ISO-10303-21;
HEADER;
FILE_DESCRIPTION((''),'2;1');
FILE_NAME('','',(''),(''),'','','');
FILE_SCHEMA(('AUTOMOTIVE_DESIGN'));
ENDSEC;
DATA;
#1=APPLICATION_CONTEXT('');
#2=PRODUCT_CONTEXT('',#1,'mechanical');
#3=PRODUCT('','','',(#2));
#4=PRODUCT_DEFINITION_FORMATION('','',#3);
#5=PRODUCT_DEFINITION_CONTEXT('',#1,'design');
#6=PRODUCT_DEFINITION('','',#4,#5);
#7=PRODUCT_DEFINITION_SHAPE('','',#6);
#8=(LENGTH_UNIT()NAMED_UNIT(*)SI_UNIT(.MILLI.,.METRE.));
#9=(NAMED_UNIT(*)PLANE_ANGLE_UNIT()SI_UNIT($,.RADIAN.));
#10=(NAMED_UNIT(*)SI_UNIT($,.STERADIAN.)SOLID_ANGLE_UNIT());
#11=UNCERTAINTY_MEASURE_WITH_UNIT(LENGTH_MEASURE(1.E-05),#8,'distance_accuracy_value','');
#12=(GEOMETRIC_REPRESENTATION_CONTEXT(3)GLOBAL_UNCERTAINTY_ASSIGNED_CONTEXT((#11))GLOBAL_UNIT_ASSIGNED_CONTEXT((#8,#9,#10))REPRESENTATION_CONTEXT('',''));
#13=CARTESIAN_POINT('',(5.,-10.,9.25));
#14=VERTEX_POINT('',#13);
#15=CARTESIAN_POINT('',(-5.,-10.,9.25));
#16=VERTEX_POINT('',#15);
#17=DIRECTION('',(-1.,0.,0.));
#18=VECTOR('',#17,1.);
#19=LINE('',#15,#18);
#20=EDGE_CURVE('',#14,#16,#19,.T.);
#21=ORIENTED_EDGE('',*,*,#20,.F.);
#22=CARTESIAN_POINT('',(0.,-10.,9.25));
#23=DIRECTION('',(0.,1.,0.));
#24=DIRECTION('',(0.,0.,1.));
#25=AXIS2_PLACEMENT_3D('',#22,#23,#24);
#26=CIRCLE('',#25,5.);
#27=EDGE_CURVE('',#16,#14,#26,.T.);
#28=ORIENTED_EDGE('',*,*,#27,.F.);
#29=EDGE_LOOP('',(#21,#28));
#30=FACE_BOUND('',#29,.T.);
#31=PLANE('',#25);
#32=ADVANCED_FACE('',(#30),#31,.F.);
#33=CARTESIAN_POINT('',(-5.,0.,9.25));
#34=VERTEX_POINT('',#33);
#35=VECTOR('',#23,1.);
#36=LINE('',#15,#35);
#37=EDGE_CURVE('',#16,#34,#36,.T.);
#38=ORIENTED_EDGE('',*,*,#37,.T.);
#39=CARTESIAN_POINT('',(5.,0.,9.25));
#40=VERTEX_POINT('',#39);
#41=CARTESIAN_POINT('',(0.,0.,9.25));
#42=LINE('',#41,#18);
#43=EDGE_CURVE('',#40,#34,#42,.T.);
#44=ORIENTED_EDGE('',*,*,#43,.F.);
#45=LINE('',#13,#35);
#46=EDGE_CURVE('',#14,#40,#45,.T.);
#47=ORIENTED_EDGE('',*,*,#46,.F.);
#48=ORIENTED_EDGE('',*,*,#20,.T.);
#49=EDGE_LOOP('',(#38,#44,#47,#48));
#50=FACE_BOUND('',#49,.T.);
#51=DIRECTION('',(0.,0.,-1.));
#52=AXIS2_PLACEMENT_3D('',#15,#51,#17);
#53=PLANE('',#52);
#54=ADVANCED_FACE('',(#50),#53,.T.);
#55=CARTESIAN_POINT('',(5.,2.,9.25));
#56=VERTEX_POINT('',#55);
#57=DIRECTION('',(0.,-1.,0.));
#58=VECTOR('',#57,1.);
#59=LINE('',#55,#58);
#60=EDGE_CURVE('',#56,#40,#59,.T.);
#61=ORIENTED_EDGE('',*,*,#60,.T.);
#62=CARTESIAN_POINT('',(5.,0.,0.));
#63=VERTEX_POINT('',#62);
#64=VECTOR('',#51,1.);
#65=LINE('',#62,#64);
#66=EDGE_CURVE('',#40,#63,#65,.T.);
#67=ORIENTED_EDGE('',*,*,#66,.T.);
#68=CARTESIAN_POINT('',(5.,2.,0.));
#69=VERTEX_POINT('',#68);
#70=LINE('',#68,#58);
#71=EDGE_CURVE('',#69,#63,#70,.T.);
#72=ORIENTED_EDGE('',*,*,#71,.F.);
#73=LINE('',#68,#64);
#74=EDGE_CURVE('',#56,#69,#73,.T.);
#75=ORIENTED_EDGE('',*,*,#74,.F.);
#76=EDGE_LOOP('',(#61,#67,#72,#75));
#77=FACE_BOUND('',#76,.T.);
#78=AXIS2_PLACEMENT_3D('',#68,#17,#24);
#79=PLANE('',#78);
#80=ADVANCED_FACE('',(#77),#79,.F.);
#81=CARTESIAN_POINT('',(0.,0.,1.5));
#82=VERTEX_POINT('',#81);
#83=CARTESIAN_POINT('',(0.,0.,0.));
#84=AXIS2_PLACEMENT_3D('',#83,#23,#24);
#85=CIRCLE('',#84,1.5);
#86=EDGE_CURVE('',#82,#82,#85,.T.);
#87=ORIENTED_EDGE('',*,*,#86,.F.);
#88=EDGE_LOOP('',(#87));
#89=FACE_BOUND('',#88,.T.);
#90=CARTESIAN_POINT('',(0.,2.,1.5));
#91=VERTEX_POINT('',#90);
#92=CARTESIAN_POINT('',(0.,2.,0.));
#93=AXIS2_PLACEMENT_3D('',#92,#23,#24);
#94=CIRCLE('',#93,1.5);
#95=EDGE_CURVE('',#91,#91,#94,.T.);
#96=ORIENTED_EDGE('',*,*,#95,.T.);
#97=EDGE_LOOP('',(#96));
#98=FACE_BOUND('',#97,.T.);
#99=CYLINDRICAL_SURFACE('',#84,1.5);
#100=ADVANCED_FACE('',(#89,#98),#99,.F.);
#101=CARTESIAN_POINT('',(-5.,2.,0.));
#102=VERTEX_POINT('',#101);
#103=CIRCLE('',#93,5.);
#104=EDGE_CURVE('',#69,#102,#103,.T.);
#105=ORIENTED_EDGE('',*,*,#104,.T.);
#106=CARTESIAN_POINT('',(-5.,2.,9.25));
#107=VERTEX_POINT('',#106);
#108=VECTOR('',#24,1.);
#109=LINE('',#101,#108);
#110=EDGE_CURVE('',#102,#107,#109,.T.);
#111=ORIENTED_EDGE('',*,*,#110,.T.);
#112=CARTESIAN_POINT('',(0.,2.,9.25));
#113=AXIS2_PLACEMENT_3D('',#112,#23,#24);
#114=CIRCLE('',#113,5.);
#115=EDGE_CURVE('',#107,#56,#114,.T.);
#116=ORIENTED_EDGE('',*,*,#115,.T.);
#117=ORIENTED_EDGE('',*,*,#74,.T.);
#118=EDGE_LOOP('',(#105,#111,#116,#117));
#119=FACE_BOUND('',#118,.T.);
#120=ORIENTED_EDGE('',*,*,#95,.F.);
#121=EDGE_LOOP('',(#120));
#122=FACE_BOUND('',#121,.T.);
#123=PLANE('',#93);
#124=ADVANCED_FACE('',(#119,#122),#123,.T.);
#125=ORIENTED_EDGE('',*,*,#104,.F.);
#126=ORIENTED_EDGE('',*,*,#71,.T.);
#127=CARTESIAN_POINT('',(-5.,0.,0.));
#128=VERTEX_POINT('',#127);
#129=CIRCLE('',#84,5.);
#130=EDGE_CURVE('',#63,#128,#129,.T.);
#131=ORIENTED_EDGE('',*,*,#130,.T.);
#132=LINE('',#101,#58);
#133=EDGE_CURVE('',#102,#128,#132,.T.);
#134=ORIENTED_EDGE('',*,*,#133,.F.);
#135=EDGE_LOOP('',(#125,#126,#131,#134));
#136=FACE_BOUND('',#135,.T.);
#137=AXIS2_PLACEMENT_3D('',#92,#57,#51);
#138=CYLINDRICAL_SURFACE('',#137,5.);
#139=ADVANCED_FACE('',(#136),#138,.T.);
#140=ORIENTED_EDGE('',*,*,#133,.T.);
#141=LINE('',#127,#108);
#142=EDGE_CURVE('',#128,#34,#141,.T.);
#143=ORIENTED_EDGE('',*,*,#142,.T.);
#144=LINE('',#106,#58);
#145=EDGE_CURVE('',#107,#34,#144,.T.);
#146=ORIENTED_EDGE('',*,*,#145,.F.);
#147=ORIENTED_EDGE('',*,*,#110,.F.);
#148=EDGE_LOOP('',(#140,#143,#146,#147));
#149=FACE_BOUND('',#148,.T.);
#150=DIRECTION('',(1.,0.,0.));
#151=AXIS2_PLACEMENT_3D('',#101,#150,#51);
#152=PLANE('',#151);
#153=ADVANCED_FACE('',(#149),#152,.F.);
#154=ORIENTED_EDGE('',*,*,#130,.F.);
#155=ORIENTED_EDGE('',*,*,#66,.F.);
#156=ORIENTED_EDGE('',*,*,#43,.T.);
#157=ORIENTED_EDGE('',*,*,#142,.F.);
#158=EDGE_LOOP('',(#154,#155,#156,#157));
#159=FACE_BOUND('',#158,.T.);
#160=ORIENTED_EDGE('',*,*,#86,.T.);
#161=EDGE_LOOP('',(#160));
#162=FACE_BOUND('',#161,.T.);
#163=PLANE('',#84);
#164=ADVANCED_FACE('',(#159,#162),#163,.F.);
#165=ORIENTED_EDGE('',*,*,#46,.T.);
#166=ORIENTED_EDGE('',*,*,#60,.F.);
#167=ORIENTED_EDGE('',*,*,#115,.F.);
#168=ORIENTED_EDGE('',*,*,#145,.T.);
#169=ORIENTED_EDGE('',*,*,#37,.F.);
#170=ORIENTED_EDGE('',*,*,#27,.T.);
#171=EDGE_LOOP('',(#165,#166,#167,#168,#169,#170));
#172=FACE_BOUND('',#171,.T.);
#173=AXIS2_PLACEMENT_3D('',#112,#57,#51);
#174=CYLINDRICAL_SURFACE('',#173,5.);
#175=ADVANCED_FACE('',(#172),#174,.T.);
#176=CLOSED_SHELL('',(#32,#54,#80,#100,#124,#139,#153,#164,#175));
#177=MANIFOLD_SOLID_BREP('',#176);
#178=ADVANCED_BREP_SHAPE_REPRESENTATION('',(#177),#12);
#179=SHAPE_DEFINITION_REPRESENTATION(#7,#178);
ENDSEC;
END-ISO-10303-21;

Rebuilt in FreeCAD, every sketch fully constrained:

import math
import FreeCAD as App
import Part
import Sketcher

V = App.Vector
Q = App.Units.Quantity

doc = App.newDocument("Part")
body = doc.addObject("PartDesign::Body", "Body")

# Sketch on XZ plane
sketch1 = body.newObject("Sketcher::SketchObject", "Sketch")
sketch1.AttachmentSupport = (doc.getObject("XZ_Plane"), [""])
sketch1.MapMode = "FlatFace"
sketch1.addGeometry(Part.LineSegment(V(-5, 0, 0), V(-5, 9, 0)), False)
sketch1.addGeometry(Part.ArcOfCircle(Part.Circle(V(0, 9, 0), V(0, 0, 1), 5), math.radians(0), math.radians(180)), False)
sketch1.addGeometry(Part.LineSegment(V(5, 9, 0), V(5, 0, 0)), False)
sketch1.addGeometry(Part.ArcOfCircle(Part.Circle(V(0, 0, 0), V(0, 0, 1), 5), math.radians(180), math.radians(360)), False)
sketch1.addConstraint(Sketcher.Constraint("Tangent", 0, 2, 1, 2))
sketch1.addConstraint(Sketcher.Constraint("Tangent", 1, 1, 2, 1))
sketch1.addConstraint(Sketcher.Constraint("Tangent", 2, 2, 3, 2))
sketch1.addConstraint(Sketcher.Constraint("Tangent", 3, 1, 0, 1))
sketch1.addConstraint(Sketcher.Constraint("Vertical", 0))
sketch1.addConstraint(Sketcher.Constraint("Vertical", 2))
sketch1.addConstraint(Sketcher.Constraint("Coincident", 3, 3, -1, 1))
sketch1.addConstraint(Sketcher.Constraint("Radius", 1, Q("5 mm")))
sketch1.addConstraint(Sketcher.Constraint("DistanceY", 0, 1, 0, 2, Q("9.25 mm")))
pad1 = body.newObject("PartDesign::Pad", "Pad")
pad1.Profile = sketch1
pad1.Length = 2
pad1.Reversed = True

# Sketch on XZ plane
sketch2 = body.newObject("Sketcher::SketchObject", "Sketch001")
sketch2.AttachmentSupport = (doc.getObject("XZ_Plane"), [""])
sketch2.MapMode = "FlatFace"
sketch2.AttachmentOffset = App.Placement(V(0, 0, -2), App.Rotation())
sketch2.addGeometry(Part.Circle(V(0, 0, 0), V(0, 0, 1), 1.5), False)
sketch2.addConstraint(Sketcher.Constraint("Coincident", 0, 3, -1, 1))
sketch2.addConstraint(Sketcher.Constraint("Diameter", 0, Q("3 mm")))
pocket1 = body.newObject("PartDesign::Pocket", "Pocket")
pocket1.Profile = sketch2
pocket1.Length = 2
pocket1.Reversed = True

# Sketch on XZ plane
sketch3 = body.newObject("Sketcher::SketchObject", "Sketch002")
sketch3.AttachmentSupport = (doc.getObject("XZ_Plane"), [""])
sketch3.MapMode = "FlatFace"
sketch3.AttachmentOffset = App.Placement(V(0, 0, 10), App.Rotation())
sketch3.addGeometry(Part.LineSegment(V(5, 9, 0), V(-5, 9, 0)), False)
sketch3.addGeometry(Part.ArcOfCircle(Part.Circle(V(0, 9, 0), V(0, 0, 1), 5), math.radians(0), math.radians(180)), False)
sketch3.addConstraint(Sketcher.Constraint("Coincident", 0, 1, 1, 1))
sketch3.addConstraint(Sketcher.Constraint("Coincident", 1, 2, 0, 2))
sketch3.addConstraint(Sketcher.Constraint("Horizontal", 0))
sketch3.addConstraint(Sketcher.Constraint("PointOnObject", 1, 3, -2))
sketch3.addConstraint(Sketcher.Constraint("Horizontal", 1, 3, 0, 1))
sketch3.addConstraint(Sketcher.Constraint("Radius", 1, Q("5 mm")))
sketch3.addConstraint(Sketcher.Constraint("DistanceY", -1, 1, 1, 3, Q("9.25 mm")))
pad2 = body.newObject("PartDesign::Pad", "Pad001")
pad2.Profile = sketch3
pad2.Length = 12
pad2.Reversed = True

doc.recompute()
